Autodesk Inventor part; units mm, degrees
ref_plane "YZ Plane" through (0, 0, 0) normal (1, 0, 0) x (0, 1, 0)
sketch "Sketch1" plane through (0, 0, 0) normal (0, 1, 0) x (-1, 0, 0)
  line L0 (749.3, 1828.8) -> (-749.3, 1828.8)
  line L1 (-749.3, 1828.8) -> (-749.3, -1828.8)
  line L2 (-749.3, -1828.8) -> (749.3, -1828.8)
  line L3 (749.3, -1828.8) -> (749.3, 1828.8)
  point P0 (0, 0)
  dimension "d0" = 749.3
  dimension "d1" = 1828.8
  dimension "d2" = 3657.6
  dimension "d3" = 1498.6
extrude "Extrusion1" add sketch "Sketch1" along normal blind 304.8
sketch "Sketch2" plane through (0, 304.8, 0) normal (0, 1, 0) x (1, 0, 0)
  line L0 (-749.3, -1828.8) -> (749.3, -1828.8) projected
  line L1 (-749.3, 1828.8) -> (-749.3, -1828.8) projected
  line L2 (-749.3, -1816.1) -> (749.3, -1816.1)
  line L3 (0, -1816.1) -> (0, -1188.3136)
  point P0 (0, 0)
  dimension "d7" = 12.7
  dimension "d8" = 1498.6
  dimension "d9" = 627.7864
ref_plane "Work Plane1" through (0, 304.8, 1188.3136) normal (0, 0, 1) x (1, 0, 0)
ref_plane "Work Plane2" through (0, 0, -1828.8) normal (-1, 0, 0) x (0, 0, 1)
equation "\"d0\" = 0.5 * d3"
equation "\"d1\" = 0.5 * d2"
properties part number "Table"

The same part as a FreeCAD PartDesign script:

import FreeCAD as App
import Part
import Sketcher

V = App.Vector
Q = App.Units.Quantity


def add_polygon(sketch, points):
    """Adds a closed chain of lines whose ends are joined by coincident constraints."""
    first, n = sketch.GeometryCount, len(points)
    for a, b in zip(points, points[1:] + points[:1]):
        sketch.addGeometry(Part.LineSegment(App.Vector(*a, 0), App.Vector(*b, 0)), False)
    for i in range(n):
        sketch.addConstraint(Sketcher.Constraint("Coincident", first + i, 2, first + (i + 1) % n, 1))

doc = App.newDocument("Part")
body = doc.addObject("PartDesign::Body", "Body")

# Sketch on XZ plane
sketch1 = doc.addObject("Sketcher::SketchObject", "Sketch")
body.addObject(sketch1)
sketch1.AttachmentSupport = (doc.XZ_Plane, [""])
sketch1.MapMode = "FlatFace"
add_polygon(sketch1, [(-749, -1829), (-749, 1829), (749, 1829), (749, -1829)])  # lines 0-3
sketch1.addConstraint([
    Sketcher.Constraint("Vertical", 0),
    Sketcher.Constraint("Horizontal", 1),
    Sketcher.Constraint("Vertical", 2),
    Sketcher.Constraint("Horizontal", 3),
    Sketcher.Constraint("Symmetric", 0, 2, 2, 2, -1, 1),
    Sketcher.Constraint("DistanceX", 1, 1, 1, 2, Q("59 in")),
    Sketcher.Constraint("DistanceY", 0, 1, 0, 2, Q("144 in")),
])
pad1 = doc.addObject("PartDesign::Pad", "Pad")
body.addObject(pad1)
pad1.Profile = sketch1
pad1.Length = Q("12 in")
pad1.Reversed = True

doc.recompute()
